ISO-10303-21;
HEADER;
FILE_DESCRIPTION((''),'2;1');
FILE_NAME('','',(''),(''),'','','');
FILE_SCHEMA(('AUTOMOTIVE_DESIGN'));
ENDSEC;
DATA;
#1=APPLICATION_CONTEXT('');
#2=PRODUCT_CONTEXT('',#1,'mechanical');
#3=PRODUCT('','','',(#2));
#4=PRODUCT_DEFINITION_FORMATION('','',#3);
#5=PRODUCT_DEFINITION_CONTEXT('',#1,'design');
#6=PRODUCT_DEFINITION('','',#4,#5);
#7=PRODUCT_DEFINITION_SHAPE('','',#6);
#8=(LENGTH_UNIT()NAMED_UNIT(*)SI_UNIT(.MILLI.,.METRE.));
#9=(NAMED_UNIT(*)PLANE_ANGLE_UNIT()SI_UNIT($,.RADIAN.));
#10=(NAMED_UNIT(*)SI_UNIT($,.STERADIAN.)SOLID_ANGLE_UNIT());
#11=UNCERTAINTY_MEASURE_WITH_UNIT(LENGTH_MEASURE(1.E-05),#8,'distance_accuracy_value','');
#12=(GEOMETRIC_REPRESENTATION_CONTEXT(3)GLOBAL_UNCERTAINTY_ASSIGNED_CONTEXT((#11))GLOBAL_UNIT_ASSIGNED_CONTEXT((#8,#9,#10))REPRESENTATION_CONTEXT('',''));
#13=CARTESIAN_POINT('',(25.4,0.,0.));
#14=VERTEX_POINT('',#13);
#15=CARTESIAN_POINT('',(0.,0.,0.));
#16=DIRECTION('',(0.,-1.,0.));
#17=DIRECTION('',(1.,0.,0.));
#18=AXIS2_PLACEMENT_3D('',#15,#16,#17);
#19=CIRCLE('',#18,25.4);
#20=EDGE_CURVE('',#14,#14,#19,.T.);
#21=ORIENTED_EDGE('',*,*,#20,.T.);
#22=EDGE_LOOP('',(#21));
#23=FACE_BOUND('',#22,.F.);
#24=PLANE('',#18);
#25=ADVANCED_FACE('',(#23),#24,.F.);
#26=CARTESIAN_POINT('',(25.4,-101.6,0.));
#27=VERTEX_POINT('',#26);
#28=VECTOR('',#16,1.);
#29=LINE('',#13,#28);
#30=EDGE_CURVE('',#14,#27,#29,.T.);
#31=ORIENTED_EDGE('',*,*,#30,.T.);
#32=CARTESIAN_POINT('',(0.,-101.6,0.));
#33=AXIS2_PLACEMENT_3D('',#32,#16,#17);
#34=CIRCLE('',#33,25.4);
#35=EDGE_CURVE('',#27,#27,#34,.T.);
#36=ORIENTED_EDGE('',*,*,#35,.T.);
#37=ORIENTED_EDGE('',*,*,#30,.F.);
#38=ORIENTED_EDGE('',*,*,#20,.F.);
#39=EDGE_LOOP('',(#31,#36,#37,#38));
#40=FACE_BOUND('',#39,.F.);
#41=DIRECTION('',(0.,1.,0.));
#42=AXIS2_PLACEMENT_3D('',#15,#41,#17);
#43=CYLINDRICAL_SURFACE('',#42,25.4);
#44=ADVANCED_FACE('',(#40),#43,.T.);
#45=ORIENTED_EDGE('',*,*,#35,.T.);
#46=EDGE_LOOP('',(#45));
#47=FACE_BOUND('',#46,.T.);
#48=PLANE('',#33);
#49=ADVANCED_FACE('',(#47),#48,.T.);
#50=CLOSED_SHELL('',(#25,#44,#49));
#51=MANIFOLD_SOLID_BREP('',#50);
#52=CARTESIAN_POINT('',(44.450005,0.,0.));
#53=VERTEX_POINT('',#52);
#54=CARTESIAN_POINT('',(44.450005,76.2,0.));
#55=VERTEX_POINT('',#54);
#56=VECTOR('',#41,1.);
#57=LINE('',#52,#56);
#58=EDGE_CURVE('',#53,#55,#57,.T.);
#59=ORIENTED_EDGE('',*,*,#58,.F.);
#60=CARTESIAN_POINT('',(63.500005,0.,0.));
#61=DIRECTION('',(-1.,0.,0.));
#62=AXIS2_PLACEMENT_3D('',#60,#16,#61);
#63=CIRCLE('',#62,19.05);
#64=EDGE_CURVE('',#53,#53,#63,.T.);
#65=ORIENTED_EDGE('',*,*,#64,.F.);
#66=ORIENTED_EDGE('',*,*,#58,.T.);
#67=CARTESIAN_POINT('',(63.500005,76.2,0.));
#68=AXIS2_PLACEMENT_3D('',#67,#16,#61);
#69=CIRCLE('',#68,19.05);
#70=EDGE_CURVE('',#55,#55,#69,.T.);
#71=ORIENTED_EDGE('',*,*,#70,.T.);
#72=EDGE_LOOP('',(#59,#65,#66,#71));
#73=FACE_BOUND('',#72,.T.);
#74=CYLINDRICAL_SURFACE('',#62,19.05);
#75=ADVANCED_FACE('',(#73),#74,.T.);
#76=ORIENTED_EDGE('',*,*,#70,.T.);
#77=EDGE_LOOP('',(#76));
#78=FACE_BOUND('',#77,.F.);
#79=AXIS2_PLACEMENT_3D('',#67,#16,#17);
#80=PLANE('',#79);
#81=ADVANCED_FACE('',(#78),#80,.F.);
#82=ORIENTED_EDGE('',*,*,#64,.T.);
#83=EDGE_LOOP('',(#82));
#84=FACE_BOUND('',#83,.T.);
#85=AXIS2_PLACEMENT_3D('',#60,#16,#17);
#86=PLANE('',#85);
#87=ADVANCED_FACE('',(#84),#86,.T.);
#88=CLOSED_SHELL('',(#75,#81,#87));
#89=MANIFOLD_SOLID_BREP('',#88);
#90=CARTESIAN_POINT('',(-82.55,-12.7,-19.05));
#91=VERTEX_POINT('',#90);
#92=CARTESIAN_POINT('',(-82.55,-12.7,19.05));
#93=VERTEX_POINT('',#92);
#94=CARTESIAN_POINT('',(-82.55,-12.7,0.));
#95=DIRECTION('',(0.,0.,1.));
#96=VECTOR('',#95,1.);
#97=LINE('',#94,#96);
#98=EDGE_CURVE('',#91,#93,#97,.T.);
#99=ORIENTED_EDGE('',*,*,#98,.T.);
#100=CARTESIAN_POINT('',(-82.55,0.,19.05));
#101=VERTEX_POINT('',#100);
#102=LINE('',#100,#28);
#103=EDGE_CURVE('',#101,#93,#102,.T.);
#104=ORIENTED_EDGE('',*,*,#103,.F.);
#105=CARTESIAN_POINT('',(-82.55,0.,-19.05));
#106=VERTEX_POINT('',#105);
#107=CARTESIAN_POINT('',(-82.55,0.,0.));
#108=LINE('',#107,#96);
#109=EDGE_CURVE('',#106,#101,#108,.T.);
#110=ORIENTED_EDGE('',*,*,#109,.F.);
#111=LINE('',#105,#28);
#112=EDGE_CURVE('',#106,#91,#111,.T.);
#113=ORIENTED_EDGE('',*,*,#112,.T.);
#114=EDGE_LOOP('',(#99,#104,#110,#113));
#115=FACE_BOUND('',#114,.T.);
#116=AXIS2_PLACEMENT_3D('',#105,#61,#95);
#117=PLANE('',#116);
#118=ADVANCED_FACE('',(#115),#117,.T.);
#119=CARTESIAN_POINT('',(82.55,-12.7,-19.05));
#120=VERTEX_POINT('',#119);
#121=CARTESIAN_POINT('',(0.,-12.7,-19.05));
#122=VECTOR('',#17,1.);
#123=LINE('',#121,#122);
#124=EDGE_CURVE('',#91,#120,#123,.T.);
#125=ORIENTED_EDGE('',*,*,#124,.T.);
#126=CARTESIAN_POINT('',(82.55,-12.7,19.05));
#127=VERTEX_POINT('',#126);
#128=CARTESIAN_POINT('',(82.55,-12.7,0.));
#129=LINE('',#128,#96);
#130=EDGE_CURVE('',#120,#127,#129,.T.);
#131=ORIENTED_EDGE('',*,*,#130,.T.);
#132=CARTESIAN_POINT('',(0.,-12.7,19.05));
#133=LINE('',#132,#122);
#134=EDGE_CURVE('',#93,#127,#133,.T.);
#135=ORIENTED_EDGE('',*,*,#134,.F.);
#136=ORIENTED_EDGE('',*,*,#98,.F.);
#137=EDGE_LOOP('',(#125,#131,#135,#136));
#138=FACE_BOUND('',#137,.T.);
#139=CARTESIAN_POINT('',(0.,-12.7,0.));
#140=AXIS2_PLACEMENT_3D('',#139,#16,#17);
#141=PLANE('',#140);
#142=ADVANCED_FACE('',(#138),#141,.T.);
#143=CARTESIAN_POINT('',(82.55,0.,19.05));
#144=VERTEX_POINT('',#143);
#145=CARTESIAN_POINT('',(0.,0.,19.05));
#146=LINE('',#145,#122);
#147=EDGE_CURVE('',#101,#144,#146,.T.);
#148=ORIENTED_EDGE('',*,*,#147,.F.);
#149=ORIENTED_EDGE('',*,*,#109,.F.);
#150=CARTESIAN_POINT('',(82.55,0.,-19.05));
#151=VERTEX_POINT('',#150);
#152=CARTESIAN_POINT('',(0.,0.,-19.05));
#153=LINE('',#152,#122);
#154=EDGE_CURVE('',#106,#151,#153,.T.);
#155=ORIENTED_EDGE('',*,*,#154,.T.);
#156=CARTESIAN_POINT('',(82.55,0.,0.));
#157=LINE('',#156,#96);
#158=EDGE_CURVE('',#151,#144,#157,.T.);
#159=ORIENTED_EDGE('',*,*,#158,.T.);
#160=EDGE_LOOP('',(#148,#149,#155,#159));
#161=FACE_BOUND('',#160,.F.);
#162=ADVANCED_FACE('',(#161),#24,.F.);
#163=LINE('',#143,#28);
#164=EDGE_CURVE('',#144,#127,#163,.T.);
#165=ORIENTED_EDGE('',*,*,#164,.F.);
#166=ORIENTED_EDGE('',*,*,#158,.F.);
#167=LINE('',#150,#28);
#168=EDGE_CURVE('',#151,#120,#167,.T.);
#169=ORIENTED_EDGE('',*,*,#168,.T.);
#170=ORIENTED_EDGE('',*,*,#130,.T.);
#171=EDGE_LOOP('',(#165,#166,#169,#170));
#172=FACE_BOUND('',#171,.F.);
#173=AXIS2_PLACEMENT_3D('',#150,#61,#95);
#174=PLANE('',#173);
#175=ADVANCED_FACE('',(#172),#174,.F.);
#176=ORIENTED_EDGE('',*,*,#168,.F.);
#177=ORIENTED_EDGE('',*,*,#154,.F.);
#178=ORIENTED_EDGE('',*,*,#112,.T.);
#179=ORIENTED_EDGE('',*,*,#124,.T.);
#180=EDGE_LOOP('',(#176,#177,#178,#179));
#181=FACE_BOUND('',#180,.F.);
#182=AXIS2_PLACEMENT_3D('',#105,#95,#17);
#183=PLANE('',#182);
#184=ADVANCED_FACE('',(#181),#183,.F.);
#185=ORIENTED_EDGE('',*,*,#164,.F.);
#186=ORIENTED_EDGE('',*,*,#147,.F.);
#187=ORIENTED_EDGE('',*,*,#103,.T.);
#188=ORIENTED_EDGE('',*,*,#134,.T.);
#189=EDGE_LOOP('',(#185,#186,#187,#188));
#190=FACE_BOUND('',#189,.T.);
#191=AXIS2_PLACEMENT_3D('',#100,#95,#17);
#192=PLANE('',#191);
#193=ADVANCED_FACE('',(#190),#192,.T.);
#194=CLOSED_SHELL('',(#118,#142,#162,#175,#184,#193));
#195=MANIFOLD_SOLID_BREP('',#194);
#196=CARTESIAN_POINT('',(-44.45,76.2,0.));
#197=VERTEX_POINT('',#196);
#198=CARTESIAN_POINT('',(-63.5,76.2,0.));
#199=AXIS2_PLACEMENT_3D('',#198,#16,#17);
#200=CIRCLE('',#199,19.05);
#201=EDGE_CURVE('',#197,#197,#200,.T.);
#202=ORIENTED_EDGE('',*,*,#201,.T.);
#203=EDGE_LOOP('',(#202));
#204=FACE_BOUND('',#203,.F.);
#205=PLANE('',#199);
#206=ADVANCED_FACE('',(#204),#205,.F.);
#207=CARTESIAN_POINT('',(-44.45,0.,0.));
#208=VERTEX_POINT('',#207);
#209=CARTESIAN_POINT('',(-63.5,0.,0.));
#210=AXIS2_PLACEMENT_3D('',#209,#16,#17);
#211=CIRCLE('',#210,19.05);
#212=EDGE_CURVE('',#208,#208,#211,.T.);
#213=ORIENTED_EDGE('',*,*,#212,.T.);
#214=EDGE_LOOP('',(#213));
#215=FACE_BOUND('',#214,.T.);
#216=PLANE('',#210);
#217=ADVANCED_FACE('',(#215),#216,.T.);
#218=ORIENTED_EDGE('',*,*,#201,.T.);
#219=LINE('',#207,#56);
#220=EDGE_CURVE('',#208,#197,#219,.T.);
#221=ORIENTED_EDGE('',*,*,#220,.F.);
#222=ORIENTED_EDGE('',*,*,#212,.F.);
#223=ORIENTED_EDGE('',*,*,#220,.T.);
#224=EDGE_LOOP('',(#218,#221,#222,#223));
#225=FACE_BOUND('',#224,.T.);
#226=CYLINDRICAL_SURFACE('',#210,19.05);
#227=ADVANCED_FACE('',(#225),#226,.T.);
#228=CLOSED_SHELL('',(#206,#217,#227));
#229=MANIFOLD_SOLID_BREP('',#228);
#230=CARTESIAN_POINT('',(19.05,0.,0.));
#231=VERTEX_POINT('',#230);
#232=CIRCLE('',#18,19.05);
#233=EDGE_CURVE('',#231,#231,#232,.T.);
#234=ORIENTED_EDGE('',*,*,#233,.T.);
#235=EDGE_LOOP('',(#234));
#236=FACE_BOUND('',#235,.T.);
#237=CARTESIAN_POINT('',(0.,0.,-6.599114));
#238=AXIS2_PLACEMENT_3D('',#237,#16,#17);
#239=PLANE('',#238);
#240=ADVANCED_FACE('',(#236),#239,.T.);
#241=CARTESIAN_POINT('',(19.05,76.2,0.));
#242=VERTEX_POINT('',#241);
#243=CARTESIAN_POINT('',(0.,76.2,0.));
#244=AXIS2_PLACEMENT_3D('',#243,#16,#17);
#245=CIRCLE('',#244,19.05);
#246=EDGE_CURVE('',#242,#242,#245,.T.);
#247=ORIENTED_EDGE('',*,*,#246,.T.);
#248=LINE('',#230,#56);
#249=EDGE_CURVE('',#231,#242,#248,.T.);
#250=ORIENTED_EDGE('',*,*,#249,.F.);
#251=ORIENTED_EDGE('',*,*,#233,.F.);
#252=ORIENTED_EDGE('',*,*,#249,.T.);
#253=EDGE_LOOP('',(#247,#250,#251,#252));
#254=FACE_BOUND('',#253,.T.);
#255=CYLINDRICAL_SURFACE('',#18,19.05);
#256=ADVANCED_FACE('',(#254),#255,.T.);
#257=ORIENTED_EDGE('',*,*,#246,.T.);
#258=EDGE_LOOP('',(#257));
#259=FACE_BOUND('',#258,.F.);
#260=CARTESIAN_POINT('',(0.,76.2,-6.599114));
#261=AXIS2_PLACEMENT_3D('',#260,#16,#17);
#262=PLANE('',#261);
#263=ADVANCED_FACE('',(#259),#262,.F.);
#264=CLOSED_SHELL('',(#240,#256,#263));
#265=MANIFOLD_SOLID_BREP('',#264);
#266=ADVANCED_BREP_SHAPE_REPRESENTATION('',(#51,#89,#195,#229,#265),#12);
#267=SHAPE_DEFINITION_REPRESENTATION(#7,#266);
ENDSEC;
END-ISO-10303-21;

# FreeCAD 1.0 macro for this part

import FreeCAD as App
import Part
import Sketcher
Q = App.Units.Quantity


def add_polygon(sketch, points):
    """Adds a closed chain of lines whose ends are joined by coincident constraints."""
    first, n = sketch.GeometryCount, len(points)
    for a, b in zip(points, points[1:] + points[:1]):
        sketch.addGeometry(Part.LineSegment(App.Vector(*a, 0), App.Vector(*b, 0)), False)
    for i in range(n):
        sketch.addConstraint(Sketcher.Constraint("Coincident", first + i, 2, first + (i + 1) % n, 1))

doc = App.newDocument("Part")
body = doc.addObject("PartDesign::Body", "Body")

# Sketch on XZ plane
sketch1 = body.newObject("Sketcher::SketchObject", "Sketch")
sketch1.AttachmentSupport = (doc.getObject("XZ_Plane"), [""])
sketch1.MapMode = "FlatFace"
add_polygon(sketch1, [(-82.55, 19.05), (-82.55, -19.05), (82.55, -19.05), (82.55, 19.05)])  # lines 0-3
sketch1.addConstraint([
    Sketcher.Constraint("Vertical", 0),
    Sketcher.Constraint("Horizontal", 1),
    Sketcher.Constraint("Vertical", 2),
    Sketcher.Constraint("Horizontal", 3),
    Sketcher.Constraint("Symmetric", 0, 2, 2, 2, -1, 1),
    Sketcher.Constraint("DistanceX", 1, 1, 1, 2, Q("6.5 in")),
    Sketcher.Constraint("DistanceY", 0, 2, 0, 1, Q("1.5 in")),
])
pad1 = body.newObject("PartDesign::Pad", "Pad")
pad1.Profile = sketch1
pad1.Length = Q("0.5 in")
body2 = doc.addObject("PartDesign::Body", "Body001")

# Sketch on XZ plane
sketch2 = body2.newObject("Sketcher::SketchObject", "Sketch001")
sketch2.AttachmentSupport = (doc.getObject("XZ_Plane001"), [""])
sketch2.MapMode = "FlatFace"
sketch2.addGeometry(Part.Circle(App.Vector(0, 0, 0), App.Vector(0, 0, 1), 25.4), False)
sketch2.addConstraint([
    Sketcher.Constraint("Coincident", 0, 3, -1, 1),
    Sketcher.Constraint("Diameter", 0, Q("2 in")),
])
pad2 = body2.newObject("PartDesign::Pad", "Pad001")
pad2.Profile = sketch2
pad2.Length = Q("4 in")
body3 = doc.addObject("PartDesign::Body", "Body002")
body3.AllowCompound = True

# Sketch on XZ plane
sketch3 = body3.newObject("Sketcher::SketchObject", "Sketch002")
sketch3.AttachmentSupport = (doc.getObject("XZ_Plane002"), [""])
sketch3.MapMode = "FlatFace"
sketch3.addGeometry([
    Part.Circle(App.Vector(0, 0, 0), App.Vector(0, 0, 1), 19.05),
    Part.Circle(App.Vector(-63.5, 0, 0), App.Vector(0, 0, 1), 19.05),
    Part.Circle(App.Vector(63.500005, 0, 0), App.Vector(0, 0, 1), 19.05),
], False)
sketch3.addConstraint([
    Sketcher.Constraint("Coincident", 0, 3, -1, 1),
    Sketcher.Constraint("Equal", 0, 1),
    Sketcher.Constraint("Equal", 1, 2),
    Sketcher.Constraint("Symmetric", 1, 3, 2, 3, -1, 1),
    Sketcher.Constraint("PointOnObject", 1, 3, -1),
    Sketcher.Constraint("Diameter", 0, Q("1.5 in")),
    Sketcher.Constraint("DistanceX", 1, 3, 2, 3, Q("5.0000002 in")),
])
pad3 = body3.newObject("PartDesign::Pad", "Pad002")
pad3.Profile = sketch3
pad3.Length = Q("3 in")
pad3.Reversed = True

doc.recompute()
